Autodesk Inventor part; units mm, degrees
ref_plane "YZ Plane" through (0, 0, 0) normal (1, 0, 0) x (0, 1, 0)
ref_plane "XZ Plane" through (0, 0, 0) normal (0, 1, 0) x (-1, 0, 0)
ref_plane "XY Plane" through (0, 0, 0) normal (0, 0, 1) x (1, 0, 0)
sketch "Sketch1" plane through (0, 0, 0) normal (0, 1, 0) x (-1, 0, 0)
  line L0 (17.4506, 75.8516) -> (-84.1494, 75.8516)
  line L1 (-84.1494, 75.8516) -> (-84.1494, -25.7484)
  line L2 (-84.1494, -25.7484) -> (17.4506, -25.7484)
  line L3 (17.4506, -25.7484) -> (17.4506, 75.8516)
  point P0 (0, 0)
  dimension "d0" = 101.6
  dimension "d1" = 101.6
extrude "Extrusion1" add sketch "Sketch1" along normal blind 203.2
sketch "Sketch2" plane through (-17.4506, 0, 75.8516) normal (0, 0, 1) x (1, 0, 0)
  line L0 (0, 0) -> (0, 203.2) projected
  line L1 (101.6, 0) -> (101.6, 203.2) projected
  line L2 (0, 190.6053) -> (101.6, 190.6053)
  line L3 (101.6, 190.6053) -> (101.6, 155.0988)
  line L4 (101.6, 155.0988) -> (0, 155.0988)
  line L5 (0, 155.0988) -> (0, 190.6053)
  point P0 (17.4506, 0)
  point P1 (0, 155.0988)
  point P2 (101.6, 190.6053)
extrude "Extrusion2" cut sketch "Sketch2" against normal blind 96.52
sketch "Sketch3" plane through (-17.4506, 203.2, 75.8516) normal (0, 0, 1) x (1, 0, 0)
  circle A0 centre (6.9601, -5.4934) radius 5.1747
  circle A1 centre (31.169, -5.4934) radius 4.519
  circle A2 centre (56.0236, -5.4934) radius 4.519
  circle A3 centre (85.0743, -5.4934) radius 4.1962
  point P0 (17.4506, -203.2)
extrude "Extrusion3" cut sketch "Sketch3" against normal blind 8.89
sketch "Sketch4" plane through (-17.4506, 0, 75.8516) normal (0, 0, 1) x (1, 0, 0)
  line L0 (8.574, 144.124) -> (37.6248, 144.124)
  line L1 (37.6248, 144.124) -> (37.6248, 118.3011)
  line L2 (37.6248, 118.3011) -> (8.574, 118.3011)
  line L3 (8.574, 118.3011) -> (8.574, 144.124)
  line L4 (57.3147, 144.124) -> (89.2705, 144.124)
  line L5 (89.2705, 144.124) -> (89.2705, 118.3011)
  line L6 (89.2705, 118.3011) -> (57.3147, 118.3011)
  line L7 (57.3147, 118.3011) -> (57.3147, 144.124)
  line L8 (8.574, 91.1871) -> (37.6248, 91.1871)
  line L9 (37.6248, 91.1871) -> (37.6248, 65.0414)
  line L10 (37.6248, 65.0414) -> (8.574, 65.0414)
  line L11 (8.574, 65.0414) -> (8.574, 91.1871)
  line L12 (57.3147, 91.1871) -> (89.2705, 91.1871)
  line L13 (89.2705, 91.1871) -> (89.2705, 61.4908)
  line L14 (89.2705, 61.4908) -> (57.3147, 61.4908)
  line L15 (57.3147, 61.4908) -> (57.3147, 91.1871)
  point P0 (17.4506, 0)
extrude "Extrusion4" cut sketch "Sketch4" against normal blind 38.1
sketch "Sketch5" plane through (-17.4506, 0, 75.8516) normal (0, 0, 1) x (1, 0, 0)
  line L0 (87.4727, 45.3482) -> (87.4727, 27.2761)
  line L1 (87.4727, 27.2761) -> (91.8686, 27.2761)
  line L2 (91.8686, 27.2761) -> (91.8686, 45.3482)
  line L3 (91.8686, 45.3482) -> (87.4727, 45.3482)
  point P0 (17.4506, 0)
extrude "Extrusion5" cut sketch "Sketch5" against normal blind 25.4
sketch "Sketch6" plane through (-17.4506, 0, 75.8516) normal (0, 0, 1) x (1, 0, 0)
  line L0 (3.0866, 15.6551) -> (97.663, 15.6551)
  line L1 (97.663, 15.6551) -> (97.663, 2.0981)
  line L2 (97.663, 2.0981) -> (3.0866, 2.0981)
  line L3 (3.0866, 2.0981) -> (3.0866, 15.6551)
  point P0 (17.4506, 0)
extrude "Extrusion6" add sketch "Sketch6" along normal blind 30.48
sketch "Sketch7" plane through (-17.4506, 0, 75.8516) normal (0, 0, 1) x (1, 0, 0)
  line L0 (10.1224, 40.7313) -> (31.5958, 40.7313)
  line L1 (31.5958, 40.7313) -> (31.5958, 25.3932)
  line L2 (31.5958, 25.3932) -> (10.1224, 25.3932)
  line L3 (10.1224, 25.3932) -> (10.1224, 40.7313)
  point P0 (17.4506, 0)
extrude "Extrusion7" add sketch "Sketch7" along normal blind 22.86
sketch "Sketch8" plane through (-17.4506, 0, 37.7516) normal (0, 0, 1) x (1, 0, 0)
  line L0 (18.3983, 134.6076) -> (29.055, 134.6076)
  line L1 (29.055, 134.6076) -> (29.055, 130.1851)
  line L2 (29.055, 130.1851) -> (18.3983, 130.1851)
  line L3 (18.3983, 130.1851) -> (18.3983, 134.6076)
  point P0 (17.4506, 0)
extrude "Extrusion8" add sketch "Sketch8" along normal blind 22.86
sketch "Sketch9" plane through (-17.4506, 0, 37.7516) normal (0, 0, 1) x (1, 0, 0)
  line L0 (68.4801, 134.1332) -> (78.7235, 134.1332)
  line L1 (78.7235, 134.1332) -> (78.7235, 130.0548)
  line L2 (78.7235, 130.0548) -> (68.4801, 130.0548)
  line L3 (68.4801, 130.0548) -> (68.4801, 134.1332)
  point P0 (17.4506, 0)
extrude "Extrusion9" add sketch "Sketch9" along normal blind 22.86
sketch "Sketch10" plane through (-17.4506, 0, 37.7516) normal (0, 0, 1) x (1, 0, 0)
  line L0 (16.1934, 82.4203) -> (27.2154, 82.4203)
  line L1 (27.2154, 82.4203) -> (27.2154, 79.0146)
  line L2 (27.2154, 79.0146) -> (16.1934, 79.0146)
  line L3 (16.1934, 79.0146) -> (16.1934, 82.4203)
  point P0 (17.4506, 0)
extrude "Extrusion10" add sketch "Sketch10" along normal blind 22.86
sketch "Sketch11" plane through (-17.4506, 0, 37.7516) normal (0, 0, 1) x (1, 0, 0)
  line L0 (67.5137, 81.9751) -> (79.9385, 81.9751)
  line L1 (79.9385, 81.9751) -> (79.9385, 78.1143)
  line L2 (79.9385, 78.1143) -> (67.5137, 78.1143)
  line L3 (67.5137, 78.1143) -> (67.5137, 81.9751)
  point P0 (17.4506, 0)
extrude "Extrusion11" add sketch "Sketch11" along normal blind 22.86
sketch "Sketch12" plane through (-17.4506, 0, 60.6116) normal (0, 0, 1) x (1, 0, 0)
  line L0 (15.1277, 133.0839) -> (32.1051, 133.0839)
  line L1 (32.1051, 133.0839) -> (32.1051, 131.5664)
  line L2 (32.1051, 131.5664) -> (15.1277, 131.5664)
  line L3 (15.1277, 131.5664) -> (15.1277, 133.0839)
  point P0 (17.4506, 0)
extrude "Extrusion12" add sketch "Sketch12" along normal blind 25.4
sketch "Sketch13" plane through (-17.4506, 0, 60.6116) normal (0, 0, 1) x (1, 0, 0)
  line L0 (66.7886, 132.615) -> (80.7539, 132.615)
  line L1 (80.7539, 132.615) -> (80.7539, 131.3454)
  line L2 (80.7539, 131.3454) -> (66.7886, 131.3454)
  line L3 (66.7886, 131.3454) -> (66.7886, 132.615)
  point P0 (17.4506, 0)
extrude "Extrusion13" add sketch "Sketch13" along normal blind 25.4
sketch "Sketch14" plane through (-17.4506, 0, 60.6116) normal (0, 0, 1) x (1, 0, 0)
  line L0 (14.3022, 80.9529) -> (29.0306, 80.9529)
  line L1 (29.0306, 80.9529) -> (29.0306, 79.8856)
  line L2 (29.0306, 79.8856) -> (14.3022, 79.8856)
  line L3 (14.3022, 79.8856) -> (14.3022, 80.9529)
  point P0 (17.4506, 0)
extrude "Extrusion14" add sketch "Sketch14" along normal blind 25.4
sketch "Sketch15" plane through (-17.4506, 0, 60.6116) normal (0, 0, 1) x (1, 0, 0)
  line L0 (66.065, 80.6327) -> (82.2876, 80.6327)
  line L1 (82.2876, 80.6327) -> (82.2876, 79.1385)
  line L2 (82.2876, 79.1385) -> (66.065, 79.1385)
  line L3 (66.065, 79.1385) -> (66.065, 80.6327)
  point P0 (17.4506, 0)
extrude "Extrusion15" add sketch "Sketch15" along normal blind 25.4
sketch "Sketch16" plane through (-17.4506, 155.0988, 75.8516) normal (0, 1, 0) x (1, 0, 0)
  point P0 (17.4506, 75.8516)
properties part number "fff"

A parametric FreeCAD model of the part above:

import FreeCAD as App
import Part
import Sketcher

V = App.Vector
Q = App.Units.Quantity


def add_polygon(sketch, points):
    """Adds a closed chain of lines whose ends are joined by coincident constraints."""
    first, n = sketch.GeometryCount, len(points)
    for a, b in zip(points, points[1:] + points[:1]):
        sketch.addGeometry(Part.LineSegment(App.Vector(*a, 0), App.Vector(*b, 0)), False)
    for i in range(n):
        sketch.addConstraint(Sketcher.Constraint("Coincident", first + i, 2, first + (i + 1) % n, 1))

doc = App.newDocument("Part")
params = doc.addObject("Spreadsheet::Sheet", "Params")
for row, (alias, value) in enumerate([
    ("sketch1_width", "4 in"),
    ("pad1_length", "8 in"),
    ("sketch2_width", "4 in"),
    ("pocket1_length", "3.8 in"),
    ("pocket2_length", "0.35 in"),
    ("pocket3_length", "1.5 in"),
    ("pocket4_length", "1 in"),
    ("pad2_length", "1.2 in"),
    ("pad3_length", "0.9 in"),
    ("pad4_length", "0.9 in"),
    ("pad5_length", "0.9 in"),
    ("pad6_length", "0.9 in"),
    ("sketch11_height", "0.152 in"),
    ("pad7_length", "0.9 in"),
    ("pad8_length", "1 in"),
    ("pad9_length", "1 in"),
    ("pad10_length", "1 in"),
    ("pad11_length", "1 in"),
], start=1):
    params.set(f"A{row}", alias)
    params.set(f"B{row}", "=" + value)
    params.setAlias(f"B{row}", alias)

body = doc.addObject("PartDesign::Body", "Body")

# Sketch on XZ plane
sketch1 = body.newObject("Sketcher::SketchObject", "Sketch")
sketch1.AttachmentSupport = (doc.getObject("XZ_Plane"), [""])
sketch1.MapMode = "FlatFace"
add_polygon(sketch1, [(-17, -26), (-17, 76), (84, 76), (84, -26)])  # lines 0-3
sketch1.addConstraint(Sketcher.Constraint("Vertical", 0))
sketch1.addConstraint(Sketcher.Constraint("Horizontal", 1))
sketch1.addConstraint(Sketcher.Constraint("Vertical", 2))
sketch1.addConstraint(Sketcher.Constraint("Horizontal", 3))
sketch1.addConstraint(Sketcher.Constraint("Equal", 3, 0))
sketch1.addConstraint(Sketcher.Constraint("DistanceX", 1, 1, 1, 2, Q("4 in")))
sketch1.addConstraint(Sketcher.Constraint("DistanceX", 0, 2, -1, 1, Q("17.4506 mm")))
sketch1.addConstraint(Sketcher.Constraint("DistanceY", -1, 1, 0, 2, Q("75.8516 mm")))
sketch1.setExpression("Constraints[9]", "Params.sketch1_width")
pad1 = body.newObject("PartDesign::Pad", "Pad")
pad1.Profile = sketch1
pad1.setExpression("Length", "Params.pad1_length")
pad1.Reversed = True

# Sketch on XY plane
sketch2 = body.newObject("Sketcher::SketchObject", "Sketch001")
sketch2.AttachmentSupport = (doc.getObject("XY_Plane"), [""])
sketch2.MapMode = "FlatFace"
sketch2.AttachmentOffset = App.Placement(V(0, 0, 75.8516), App.Rotation())
add_polygon(sketch2, [(-17, 191), (-17, 155), (84, 155), (84, 191)])  # lines 0-3
sketch2.addConstraint(Sketcher.Constraint("Vertical", 0))
sketch2.addConstraint(Sketcher.Constraint("Horizontal", 1))
sketch2.addConstraint(Sketcher.Constraint("Vertical", 2))
sketch2.addConstraint(Sketcher.Constraint("Horizontal", 3))
sketch2.addConstraint(Sketcher.Constraint("DistanceX", 1, 1, 1, 2, Q("4 in")))
sketch2.addConstraint(Sketcher.Constraint("DistanceY", 0, 2, 0, 1, Q("1.3979 in")))
sketch2.addConstraint(Sketcher.Constraint("DistanceX", 0, 2, -1, 1, Q("17.4506 mm")))
sketch2.addConstraint(Sketcher.Constraint("DistanceY", -1, 1, 0, 2, Q("155.0988 mm")))
sketch2.setExpression("Constraints[8]", "Params.sketch2_width")
pocket1 = body.newObject("PartDesign::Pocket", "Pocket")
pocket1.Profile = sketch2
pocket1.setExpression("Length", "Params.pocket1_length")

# Sketch on XY plane
sketch3 = body.newObject("Sketcher::SketchObject", "Sketch002")
sketch3.AttachmentSupport = (doc.getObject("XY_Plane"), [""])
sketch3.MapMode = "FlatFace"
sketch3.AttachmentOffset = App.Placement(V(0, 0, 75.8516), App.Rotation())
sketch3.addGeometry(Part.Circle(V(-10.5, 197.7, 0), V(0, 0, 1), 5.2), False)
sketch3.addGeometry(Part.Circle(V(13.7, 197.7, 0), V(0, 0, 1), 4.5), False)
sketch3.addGeometry(Part.Circle(V(38.6, 197.7, 0), V(0, 0, 1), 4.5), False)
sketch3.addGeometry(Part.Circle(V(67.6, 197.7, 0), V(0, 0, 1), 4.2), False)
sketch3.addConstraint(Sketcher.Constraint("Equal", 1, 2))
sketch3.addConstraint(Sketcher.Constraint("Horizontal", 0, 3, 1, 3))
sketch3.addConstraint(Sketcher.Constraint("Horizontal", 1, 3, 2, 3))
sketch3.addConstraint(Sketcher.Constraint("Horizontal", 2, 3, 3, 3))
sketch3.addConstraint(Sketcher.Constraint("Diameter", 3, Q("0.3304 in")))
sketch3.addConstraint(Sketcher.Constraint("Diameter", 0, Q("10.3494 mm")))
sketch3.addConstraint(Sketcher.Constraint("Diameter", 1, Q("9.038 mm")))
sketch3.addConstraint(Sketcher.Constraint("DistanceX", 0, 3, -1, 1, Q("0.413 in")))
sketch3.addConstraint(Sketcher.Constraint("DistanceX", -1, 1, 1, 3, Q("0.5401 in")))
sketch3.addConstraint(Sketcher.Constraint("DistanceY", -1, 1, 0, 3, Q("197.7066 mm")))
sketch3.addConstraint(Sketcher.Constraint("DistanceX", -1, 1, 2, 3, Q("38.573 mm")))
sketch3.addConstraint(Sketcher.Constraint("DistanceX", -1, 1, 3, 3, Q("67.6237 mm")))
pocket2 = body.newObject("PartDesign::Pocket", "Pocket001")
pocket2.Profile = sketch3
pocket2.setExpression("Length", "Params.pocket2_length")

# Sketch on XY plane
sketch4 = body.newObject("Sketcher::SketchObject", "Sketch003")
sketch4.AttachmentSupport = (doc.getObject("XY_Plane"), [""])
sketch4.MapMode = "FlatFace"
sketch4.AttachmentOffset = App.Placement(V(0, 0, 75.8516), App.Rotation())
add_polygon(sketch4, [(20, 144), (-9, 144), (-9, 118), (20, 118)])  # lines 0-3
add_polygon(sketch4, [(72, 144), (40, 144), (40, 118), (72, 118)])  # lines 4-7
add_polygon(sketch4, [(20, 91), (-9, 91), (-9, 65), (20, 65)])  # lines 8-11
add_polygon(sketch4, [(72, 91), (40, 91), (40, 61), (72, 61)])  # lines 12-15
sketch4.addConstraint(Sketcher.Constraint("Horizontal", 0))
sketch4.addConstraint(Sketcher.Constraint("Vertical", 1))
sketch4.addConstraint(Sketcher.Constraint("Horizontal", 2))
sketch4.addConstraint(Sketcher.Constraint("Vertical", 3))
sketch4.addConstraint(Sketcher.Constraint("Horizontal", 4))
sketch4.addConstraint(Sketcher.Constraint("Vertical", 5))
sketch4.addConstraint(Sketcher.Constraint("Horizontal", 6))
sketch4.addConstraint(Sketcher.Constraint("Vertical", 7))
sketch4.addConstraint(Sketcher.Constraint("Horizontal", 8))
sketch4.addConstraint(Sketcher.Constraint("Vertical", 9))
sketch4.addConstraint(Sketcher.Constraint("Horizontal", 10))
sketch4.addConstraint(Sketcher.Constraint("Vertical", 11))
sketch4.addConstraint(Sketcher.Constraint("Horizontal", 12))
sketch4.addConstraint(Sketcher.Constraint("Vertical", 13))
sketch4.addConstraint(Sketcher.Constraint("Horizontal", 14))
sketch4.addConstraint(Sketcher.Constraint("Vertical", 15))
sketch4.addConstraint(Sketcher.Constraint("Horizontal", 3, 2, 4, 2))
sketch4.addConstraint(Sketcher.Constraint("Horizontal", 2, 2, 5, 2))
sketch4.addConstraint(Sketcher.Constraint("Horizontal", 11, 2, 12, 2))
sketch4.addConstraint(Sketcher.Constraint("Vertical", 1, 2, 8, 2))
sketch4.addConstraint(Sketcher.Constraint("Vertical", 3, 2, 10, 2))
sketch4.addConstraint(Sketcher.Constraint("Vertical", 5, 2, 12, 2))
sketch4.addConstraint(Sketcher.Constraint("Vertical", 7, 2, 14, 2))
sketch4.addConstraint(Sketcher.Constraint("DistanceX", 4, 2, 4, 1, Q("1.2581 in")))
sketch4.addConstraint(Sketcher.Constraint("DistanceX", 0, 2, 0, 1, Q("29.0508 mm")))
sketch4.addConstraint(Sketcher.Constraint("DistanceY", 1, 2, 1, 1, Q("25.823 mm")))
sketch4.addConstraint(Sketcher.Constraint("DistanceY", 9, 2, 9, 1, Q("26.1457 mm")))
sketch4.addConstraint(Sketcher.Constraint("DistanceY", 13, 2, 13, 1, Q("29.6963 mm")))
sketch4.addConstraint(Sketcher.Constraint("DistanceY", -1, 1, 13, 2, Q("2.4209 in")))
sketch4.addConstraint(Sketcher.Constraint("DistanceX", 3, 2, 4, 2, Q("0.7752 in")))
sketch4.addConstraint(Sketcher.Constraint("DistanceY", 9, 2, 0, 2, Q("3.1135 in")))
sketch4.addConstraint(Sketcher.Constraint("DistanceX", 0, 2, -1, 1, Q("8.8766 mm")))
pocket3 = body.newObject("PartDesign::Pocket", "Pocket002")
pocket3.Profile = sketch4
pocket3.setExpression("Length", "Params.pocket3_length")

# Sketch on XY plane
sketch5 = body.newObject("Sketcher::SketchObject", "Sketch004")
sketch5.AttachmentSupport = (doc.getObject("XY_Plane"), [""])
sketch5.MapMode = "FlatFace"
sketch5.AttachmentOffset = App.Placement(V(0, 0, 75.8516), App.Rotation())
add_polygon(sketch5, [(74.4, 45.3), (70, 45.3), (70, 27.3), (74.4, 27.3)])  # lines 0-3
sketch5.addConstraint(Sketcher.Constraint("Horizontal", 0))
sketch5.addConstraint(Sketcher.Constraint("Vertical", 1))
sketch5.addConstraint(Sketcher.Constraint("Horizontal", 2))
sketch5.addConstraint(Sketcher.Constraint("Vertical", 3))
sketch5.addConstraint(Sketcher.Constraint("DistanceY", 1, 2, 1, 1, Q("0.7115 in")))
sketch5.addConstraint(Sketcher.Constraint("DistanceX", 0, 2, 0, 1, Q("4.396 mm")))
sketch5.addConstraint(Sketcher.Constraint("DistanceX", -1, 1, 0, 2, Q("70.022 mm")))
sketch5.addConstraint(Sketcher.Constraint("DistanceY", -1, 1, 0, 2, Q("45.3482 mm")))
pocket4 = body.newObject("PartDesign::Pocket", "Pocket003")
pocket4.Profile = sketch5
pocket4.setExpression("Length", "Params.pocket4_length")

# Sketch on XY plane
sketch6 = body.newObject("Sketcher::SketchObject", "Sketch005")
sketch6.AttachmentSupport = (doc.getObject("XY_Plane"), [""])
sketch6.MapMode = "FlatFace"
sketch6.AttachmentOffset = App.Placement(V(0, 0, 75.8516), App.Rotation())
add_polygon(sketch6, [(80, 16), (-14, 16), (-14, 2), (80, 2)])  # lines 0-3
sketch6.addConstraint(Sketcher.Constraint("Horizontal", 0))
sketch6.addConstraint(Sketcher.Constraint("Vertical", 1))
sketch6.addConstraint(Sketcher.Constraint("Horizontal", 2))
sketch6.addConstraint(Sketcher.Constraint("Vertical", 3))
sketch6.addConstraint(Sketcher.Constraint("DistanceX", 0, 2, 0, 1, Q("94.5764 mm")))
sketch6.addConstraint(Sketcher.Constraint("DistanceY", 1, 2, 1, 1, Q("13.557 mm")))
sketch6.addConstraint(Sketcher.Constraint("DistanceX", 0, 2, -1, 1, Q("0.5655 in")))
sketch6.addConstraint(Sketcher.Constraint("DistanceY", -1, 1, 1, 2, Q("0.0826 in")))
pad2 = body.newObject("PartDesign::Pad", "Pad001")
pad2.Profile = sketch6
pad2.setExpression("Length", "Params.pad2_length")

# Sketch on XY plane
sketch7 = body.newObject("Sketcher::SketchObject", "Sketch006")
sketch7.AttachmentSupport = (doc.getObject("XY_Plane"), [""])
sketch7.MapMode = "FlatFace"
sketch7.AttachmentOffset = App.Placement(V(0, 0, 75.8516), App.Rotation())
add_polygon(sketch7, [(14, 41), (-7, 41), (-7, 25), (14, 25)])  # lines 0-3
sketch7.addConstraint(Sketcher.Constraint("Horizontal", 0))
sketch7.addConstraint(Sketcher.Constraint("Vertical", 1))
sketch7.addConstraint(Sketcher.Constraint("Horizontal", 2))
sketch7.addConstraint(Sketcher.Constraint("Vertical", 3))
sketch7.addConstraint(Sketcher.Constraint("DistanceX", 0, 2, 0, 1, Q("0.8454 in")))
sketch7.addConstraint(Sketcher.Constraint("DistanceY", 1, 2, 1, 1, Q("15.338 mm")))
sketch7.addConstraint(Sketcher.Constraint("DistanceX", 0, 2, -1, 1, Q("0.2885 in")))
sketch7.addConstraint(Sketcher.Constraint("DistanceY", -1, 1, 0, 2, Q("1.6036 in")))
pad3 = body.newObject("PartDesign::Pad", "Pad002")
pad3.Profile = sketch7
pad3.setExpression("Length", "Params.pad3_length")

# Sketch on XY plane
sketch8 = body.newObject("Sketcher::SketchObject", "Sketch007")
sketch8.AttachmentSupport = (doc.getObject("XY_Plane"), [""])
sketch8.MapMode = "FlatFace"
sketch8.AttachmentOffset = App.Placement(V(0, 0, 37.7516), App.Rotation())
add_polygon(sketch8, [(11.6, 134.6), (0.9, 134.6), (0.9, 130.2), (11.6, 130.2)])  # lines 0-3
sketch8.addConstraint(Sketcher.Constraint("Horizontal", 0))
sketch8.addConstraint(Sketcher.Constraint("Vertical", 1))
sketch8.addConstraint(Sketcher.Constraint("Horizontal", 2))
sketch8.addConstraint(Sketcher.Constraint("Vertical", 3))
sketch8.addConstraint(Sketcher.Constraint("DistanceX", 0, 2, 0, 1, Q("10.6567 mm")))
sketch8.addConstraint(Sketcher.Constraint("DistanceY", 1, 2, 1, 1, Q("4.4225 mm")))
sketch8.addConstraint(Sketcher.Constraint("DistanceX", -1, 1, 0, 2, Q("0.0373 in")))
sketch8.addConstraint(Sketcher.Constraint("DistanceY", -1, 1, 0, 2, Q("5.2995 in")))
pad4 = body.newObject("PartDesign::Pad", "Pad003")
pad4.Profile = sketch8
pad4.setExpression("Length", "Params.pad4_length")

# Sketch on XY plane
sketch9 = body.newObject("Sketcher::SketchObject", "Sketch008")
sketch9.AttachmentSupport = (doc.getObject("XY_Plane"), [""])
sketch9.MapMode = "FlatFace"
sketch9.AttachmentOffset = App.Placement(V(0, 0, 37.7516), App.Rotation())
add_polygon(sketch9, [(61.3, 134.1), (51, 134.1), (51, 130.1), (61.3, 130.1)])  # lines 0-3
sketch9.addConstraint(Sketcher.Constraint("Horizontal", 0))
sketch9.addConstraint(Sketcher.Constraint("Vertical", 1))
sketch9.addConstraint(Sketcher.Constraint("Horizontal", 2))
sketch9.addConstraint(Sketcher.Constraint("Vertical", 3))
sketch9.addConstraint(Sketcher.Constraint("DistanceX", 0, 2, 0, 1, Q("10.2434 mm")))
sketch9.addConstraint(Sketcher.Constraint("DistanceY", 1, 2, 1, 1, Q("4.0784 mm")))
sketch9.addConstraint(Sketcher.Constraint("DistanceX", -1, 1, 0, 2, Q("51.0295 mm")))
sketch9.addConstraint(Sketcher.Constraint("DistanceY", -1, 1, 0, 2, Q("134.1332 mm")))
pad5 = body.newObject("PartDesign::Pad", "Pad004")
pad5.Profile = sketch9
pad5.setExpression("Length", "Params.pad5_length")

# Sketch on XY plane
sketch10 = body.newObject("Sketcher::SketchObject", "Sketch009")
sketch10.AttachmentSupport = (doc.getObject("XY_Plane"), [""])
sketch10.MapMode = "FlatFace"
sketch10.AttachmentOffset = App.Placement(V(0, 0, 37.7516), App.Rotation())
add_polygon(sketch10, [(9.8, 82.4), (-1.3, 82.4), (-1.3, 79), (9.8, 79)])  # lines 0-3
sketch10.addConstraint(Sketcher.Constraint("Horizontal", 0))
sketch10.addConstraint(Sketcher.Constraint("Vertical", 1))
sketch10.addConstraint(Sketcher.Constraint("Horizontal", 2))
sketch10.addConstraint(Sketcher.Constraint("Vertical", 3))
sketch10.addConstraint(Sketcher.Constraint("DistanceX", 0, 2, 0, 1, Q("11.022 mm")))
sketch10.addConstraint(Sketcher.Constraint("DistanceY", 1, 2, 1, 1, Q("3.4057 mm")))
sketch10.addConstraint(Sketcher.Constraint("DistanceX", 0, 2, -1, 1, Q("0.0495 in")))
sketch10.addConstraint(Sketcher.Constraint("DistanceY", -1, 1, 0, 2, Q("3.2449 in")))
pad6 = body.newObject("PartDesign::Pad", "Pad005")
pad6.Profile = sketch10
pad6.setExpression("Length", "Params.pad6_length")

# Sketch on XY plane
sketch11 = body.newObject("Sketcher::SketchObject", "Sketch010")
sketch11.AttachmentSupport = (doc.getObject("XY_Plane"), [""])
sketch11.MapMode = "FlatFace"
sketch11.AttachmentOffset = App.Placement(V(0, 0, 37.7516), App.Rotation())
add_polygon(sketch11, [(62.5, 82), (50.1, 82), (50.1, 78.1), (62.5, 78.1)])  # lines 0-3
sketch11.addConstraint(Sketcher.Constraint("Horizontal", 0))
sketch11.addConstraint(Sketcher.Constraint("Vertical", 1))
sketch11.addConstraint(Sketcher.Constraint("Horizontal", 2))
sketch11.addConstraint(Sketcher.Constraint("Vertical", 3))
sketch11.addConstraint(Sketcher.Constraint("DistanceY", 1, 2, 1, 1, Q("0.152 in")))
sketch11.addConstraint(Sketcher.Constraint("DistanceX", -1, 1, 0, 2, Q("1.971 in")))
sketch11.addConstraint(Sketcher.Constraint("DistanceX", 0, 2, 0, 1, Q("12.4248 mm")))
sketch11.addConstraint(Sketcher.Constraint("DistanceY", -1, 1, 0, 2, Q("81.975 mm")))
sketch11.setExpression("Constraints[8]", "Params.sketch11_height")
pad7 = body.newObject("PartDesign::Pad", "Pad006")
pad7.Profile = sketch11
pad7.setExpression("Length", "Params.pad7_length")

# Sketch on XY plane
sketch12 = body.newObject("Sketcher::SketchObject", "Sketch011")
sketch12.AttachmentSupport = (doc.getObject("XY_Plane"), [""])
sketch12.MapMode = "FlatFace"
sketch12.AttachmentOffset = App.Placement(V(0, 0, 60.6116), App.Rotation())
add_polygon(sketch12, [(14.7, 133.1), (-2.3, 133.1), (-2.3, 131.6), (14.7, 131.6)])  # lines 0-3
sketch12.addConstraint(Sketcher.Constraint("Horizontal", 0))
sketch12.addConstraint(Sketcher.Constraint("Vertical", 1))
sketch12.addConstraint(Sketcher.Constraint("Horizontal", 2))
sketch12.addConstraint(Sketcher.Constraint("Vertical", 3))
sketch12.addConstraint(Sketcher.Constraint("DistanceX", 0, 2, 0, 1, Q("0.6684 in")))
sketch12.addConstraint(Sketcher.Constraint("DistanceY", 1, 2, 1, 1, Q("1.5175 mm")))
sketch12.addConstraint(Sketcher.Constraint("DistanceX", 0, 2, -1, 1, Q("2.323 mm")))
sketch12.addConstraint(Sketcher.Constraint("DistanceY", -1, 1, 0, 2, Q("133.084 mm")))
pad8 = body.newObject("PartDesign::Pad", "Pad007")
pad8.Profile = sketch12
pad8.setExpression("Length", "Params.pad8_length")

# Sketch on XY plane
sketch13 = body.newObject("Sketcher::SketchObject", "Sketch012")
sketch13.AttachmentSupport = (doc.getObject("XY_Plane"), [""])
sketch13.MapMode = "FlatFace"
sketch13.AttachmentOffset = App.Placement(V(0, 0, 60.6116), App.Rotation())
add_polygon(sketch13, [(63.3, 132.6), (49.3, 132.6), (49.3, 131.3), (63.3, 131.3)])  # lines 0-3
sketch13.addConstraint(Sketcher.Constraint("Horizontal", 0))
sketch13.addConstraint(Sketcher.Constraint("Vertical", 1))
sketch13.addConstraint(Sketcher.Constraint("Horizontal", 2))
sketch13.addConstraint(Sketcher.Constraint("Vertical", 3))
sketch13.addConstraint(Sketcher.Constraint("DistanceX", 0, 2, 0, 1, Q("13.9653 mm")))
sketch13.addConstraint(Sketcher.Constraint("DistanceY", 1, 2, 1, 1, Q("1.2696 mm")))
sketch13.addConstraint(Sketcher.Constraint("DistanceX", -1, 1, 0, 2, Q("49.338 mm")))
sketch13.addConstraint(Sketcher.Constraint("DistanceY", -1, 1, 0, 2, Q("132.615 mm")))
pad9 = body.newObject("PartDesign::Pad", "Pad008")
pad9.Profile = sketch13
pad9.setExpression("Length", "Params.pad9_length")

# Sketch on XY plane
sketch14 = body.newObject("Sketcher::SketchObject", "Sketch013")
sketch14.AttachmentSupport = (doc.getObject("XY_Plane"), [""])
sketch14.MapMode = "FlatFace"
sketch14.AttachmentOffset = App.Placement(V(0, 0, 60.6116), App.Rotation())
add_polygon(sketch14, [(11.6, 81), (-3.1, 81), (-3.1, 79.9), (11.6, 79.9)])  # lines 0-3
sketch14.addConstraint(Sketcher.Constraint("Horizontal", 0))
sketch14.addConstraint(Sketcher.Constraint("Vertical", 1))
sketch14.addConstraint(Sketcher.Constraint("Horizontal", 2))
sketch14.addConstraint(Sketcher.Constraint("Vertical", 3))
sketch14.addConstraint(Sketcher.Constraint("DistanceX", 0, 2, 0, 1, Q("14.7284 mm")))
sketch14.addConstraint(Sketcher.Constraint("DistanceY", 1, 2, 1, 1, Q("1.0673 mm")))
sketch14.addConstraint(Sketcher.Constraint("DistanceY", -1, 1, 1, 2, Q("3.1451 in")))
sketch14.addConstraint(Sketcher.Constraint("DistanceX", -1, 1, 2, 2, Q("0.4559 in")))
pad10 = body.newObject("PartDesign::Pad", "Pad009")
pad10.Profile = sketch14
pad10.setExpression("Length", "Params.pad10_length")

# Sketch on XY plane
sketch15 = body.newObject("Sketcher::SketchObject", "Sketch014")
sketch15.AttachmentSupport = (doc.getObject("XY_Plane"), [""])
sketch15.MapMode = "FlatFace"
sketch15.AttachmentOffset = App.Placement(V(0, 0, 60.6116), App.Rotation())
add_polygon(sketch15, [(64.8, 80.6), (48.6, 80.6), (48.6, 79.1), (64.8, 79.1)])  # lines 0-3
sketch15.addConstraint(Sketcher.Constraint("Horizontal", 0))
sketch15.addConstraint(Sketcher.Constraint("Vertical", 1))
sketch15.addConstraint(Sketcher.Constraint("Horizontal", 2))
sketch15.addConstraint(Sketcher.Constraint("Vertical", 3))
sketch15.addConstraint(Sketcher.Constraint("DistanceX", 0, 2, 0, 1, Q("16.2226 mm")))
sketch15.addConstraint(Sketcher.Constraint("DistanceY", 1, 2, 1, 1, Q("1.4942 mm")))
sketch15.addConstraint(Sketcher.Constraint("DistanceY", -1, 1, 1, 2, Q("3.1157 in")))
sketch15.addConstraint(Sketcher.Constraint("DistanceX", -1, 1, 0, 2, Q("48.6144 mm")))
pad11 = body.newObject("PartDesign::Pad", "Pad010")
pad11.Profile = sketch15
pad11.setExpression("Length", "Params.pad11_length")

doc.recompute()
